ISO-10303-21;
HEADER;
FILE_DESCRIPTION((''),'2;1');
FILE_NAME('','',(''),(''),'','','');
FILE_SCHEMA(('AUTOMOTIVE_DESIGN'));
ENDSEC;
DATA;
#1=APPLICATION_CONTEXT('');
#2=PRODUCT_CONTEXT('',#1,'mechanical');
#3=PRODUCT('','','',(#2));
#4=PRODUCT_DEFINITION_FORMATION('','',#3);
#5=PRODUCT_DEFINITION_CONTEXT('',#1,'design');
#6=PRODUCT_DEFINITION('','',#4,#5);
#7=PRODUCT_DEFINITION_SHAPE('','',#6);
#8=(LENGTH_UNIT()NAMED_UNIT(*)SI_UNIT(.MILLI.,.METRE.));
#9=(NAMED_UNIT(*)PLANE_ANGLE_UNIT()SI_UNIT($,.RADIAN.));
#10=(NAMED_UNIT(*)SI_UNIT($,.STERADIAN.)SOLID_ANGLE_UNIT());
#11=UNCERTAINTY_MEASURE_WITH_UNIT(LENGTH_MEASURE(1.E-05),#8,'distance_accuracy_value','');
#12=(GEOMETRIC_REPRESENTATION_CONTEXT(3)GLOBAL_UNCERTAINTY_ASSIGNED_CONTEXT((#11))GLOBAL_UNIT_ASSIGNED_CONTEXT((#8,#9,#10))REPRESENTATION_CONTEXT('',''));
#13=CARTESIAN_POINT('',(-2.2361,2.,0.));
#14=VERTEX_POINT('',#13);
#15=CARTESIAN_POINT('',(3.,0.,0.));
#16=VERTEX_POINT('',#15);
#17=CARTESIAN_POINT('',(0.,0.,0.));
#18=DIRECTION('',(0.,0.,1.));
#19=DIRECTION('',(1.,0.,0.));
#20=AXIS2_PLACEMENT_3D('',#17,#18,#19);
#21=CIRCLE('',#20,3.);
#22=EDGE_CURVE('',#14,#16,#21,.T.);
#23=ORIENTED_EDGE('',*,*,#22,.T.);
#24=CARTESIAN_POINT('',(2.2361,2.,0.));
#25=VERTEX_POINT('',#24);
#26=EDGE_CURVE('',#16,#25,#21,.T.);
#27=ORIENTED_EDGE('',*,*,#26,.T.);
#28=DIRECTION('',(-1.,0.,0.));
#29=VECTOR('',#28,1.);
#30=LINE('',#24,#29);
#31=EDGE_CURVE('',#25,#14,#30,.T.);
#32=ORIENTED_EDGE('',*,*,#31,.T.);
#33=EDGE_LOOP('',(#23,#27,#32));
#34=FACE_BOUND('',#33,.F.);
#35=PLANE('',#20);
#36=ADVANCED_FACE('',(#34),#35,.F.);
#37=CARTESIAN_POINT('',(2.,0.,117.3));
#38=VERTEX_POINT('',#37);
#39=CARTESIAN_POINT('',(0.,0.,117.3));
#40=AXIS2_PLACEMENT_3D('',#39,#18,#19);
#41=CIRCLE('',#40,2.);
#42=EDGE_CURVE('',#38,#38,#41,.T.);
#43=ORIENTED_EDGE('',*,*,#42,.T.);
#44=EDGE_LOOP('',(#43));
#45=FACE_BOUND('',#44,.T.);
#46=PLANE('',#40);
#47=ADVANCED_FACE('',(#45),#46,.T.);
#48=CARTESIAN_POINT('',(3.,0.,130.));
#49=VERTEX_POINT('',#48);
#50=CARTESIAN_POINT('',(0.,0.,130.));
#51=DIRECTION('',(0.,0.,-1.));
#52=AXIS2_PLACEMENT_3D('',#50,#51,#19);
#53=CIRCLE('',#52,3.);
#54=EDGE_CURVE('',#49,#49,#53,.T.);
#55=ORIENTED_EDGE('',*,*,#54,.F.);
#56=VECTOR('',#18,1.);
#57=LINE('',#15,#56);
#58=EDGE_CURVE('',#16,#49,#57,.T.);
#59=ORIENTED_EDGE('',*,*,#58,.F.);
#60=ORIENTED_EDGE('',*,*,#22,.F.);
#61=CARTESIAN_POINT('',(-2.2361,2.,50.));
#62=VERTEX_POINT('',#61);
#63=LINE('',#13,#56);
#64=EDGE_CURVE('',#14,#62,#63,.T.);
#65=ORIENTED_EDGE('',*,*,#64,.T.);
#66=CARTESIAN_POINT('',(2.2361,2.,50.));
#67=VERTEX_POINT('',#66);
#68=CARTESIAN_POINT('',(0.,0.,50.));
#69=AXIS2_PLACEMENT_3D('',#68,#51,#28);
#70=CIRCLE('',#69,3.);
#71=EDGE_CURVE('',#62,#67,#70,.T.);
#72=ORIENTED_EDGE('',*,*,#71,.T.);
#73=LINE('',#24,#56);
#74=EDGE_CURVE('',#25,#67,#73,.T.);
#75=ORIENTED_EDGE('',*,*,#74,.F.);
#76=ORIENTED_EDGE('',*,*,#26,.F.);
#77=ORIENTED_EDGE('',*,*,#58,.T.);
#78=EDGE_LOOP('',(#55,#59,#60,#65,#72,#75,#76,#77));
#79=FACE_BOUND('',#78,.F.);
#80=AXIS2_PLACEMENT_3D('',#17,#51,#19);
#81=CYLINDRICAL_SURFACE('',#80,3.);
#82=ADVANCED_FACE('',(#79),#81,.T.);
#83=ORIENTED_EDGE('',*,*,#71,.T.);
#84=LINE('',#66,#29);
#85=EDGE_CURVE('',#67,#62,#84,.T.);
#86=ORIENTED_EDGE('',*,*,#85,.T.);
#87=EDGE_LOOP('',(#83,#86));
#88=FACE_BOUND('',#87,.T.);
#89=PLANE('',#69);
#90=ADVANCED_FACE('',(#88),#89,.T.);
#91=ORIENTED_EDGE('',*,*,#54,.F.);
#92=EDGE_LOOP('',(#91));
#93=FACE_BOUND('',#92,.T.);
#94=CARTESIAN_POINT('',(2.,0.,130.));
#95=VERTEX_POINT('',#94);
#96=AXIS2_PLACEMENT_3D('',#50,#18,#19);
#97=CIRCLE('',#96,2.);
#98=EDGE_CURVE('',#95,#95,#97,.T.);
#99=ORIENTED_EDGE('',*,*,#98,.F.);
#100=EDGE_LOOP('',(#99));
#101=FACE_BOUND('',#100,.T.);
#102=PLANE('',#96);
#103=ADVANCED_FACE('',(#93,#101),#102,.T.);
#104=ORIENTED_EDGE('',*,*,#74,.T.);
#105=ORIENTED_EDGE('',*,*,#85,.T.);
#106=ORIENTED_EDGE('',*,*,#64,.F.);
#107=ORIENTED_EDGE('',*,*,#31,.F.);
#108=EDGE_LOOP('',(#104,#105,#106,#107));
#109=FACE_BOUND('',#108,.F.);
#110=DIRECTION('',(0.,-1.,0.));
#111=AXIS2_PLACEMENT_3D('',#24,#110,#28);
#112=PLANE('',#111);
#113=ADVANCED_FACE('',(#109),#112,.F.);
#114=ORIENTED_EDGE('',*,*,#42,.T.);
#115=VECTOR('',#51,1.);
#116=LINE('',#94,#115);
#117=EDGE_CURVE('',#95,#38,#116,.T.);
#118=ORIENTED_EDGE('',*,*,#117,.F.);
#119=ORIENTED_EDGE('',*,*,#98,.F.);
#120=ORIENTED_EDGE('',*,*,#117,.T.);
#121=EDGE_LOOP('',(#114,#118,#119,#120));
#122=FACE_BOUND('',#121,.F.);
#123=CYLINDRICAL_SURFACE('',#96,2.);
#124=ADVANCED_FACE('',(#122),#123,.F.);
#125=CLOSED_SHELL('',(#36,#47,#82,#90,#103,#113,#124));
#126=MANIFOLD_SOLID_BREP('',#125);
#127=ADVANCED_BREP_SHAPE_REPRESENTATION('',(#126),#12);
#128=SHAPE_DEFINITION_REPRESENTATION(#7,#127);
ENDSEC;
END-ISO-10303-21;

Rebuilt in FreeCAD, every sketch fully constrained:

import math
import FreeCAD as App
import Part
import Sketcher
from FreeCAD import Vector

doc = App.newDocument("Part")
body = doc.addObject("PartDesign::Body", "Body")

sketch1 = doc.addObject("Sketcher::SketchObject", "Sketch")
body.addObject(sketch1)
sketch1.AttachmentSupport = (doc.XY_Plane, [""])
sketch1.MapMode = "FlatFace"
sketch1.addGeometry(Part.Circle(Vector(0, 0, 0), Vector(0, 0, 1), 3), False)
sketch1.addConstraint([
    Sketcher.Constraint("Coincident", 0, 3, -1, 1),
    Sketcher.Constraint("Diameter", 0, 6.0),
])
pad1 = doc.addObject("PartDesign::Pad", "Pad")
body.addObject(pad1)
pad1.Profile = sketch1
pad1.Length = 130

sketch2 = doc.addObject("Sketcher::SketchObject", "Sketch001")
body.addObject(sketch2)
sketch2.AttachmentSupport = (doc.XY_Plane, [""])
sketch2.MapMode = "FlatFace"
sketch2.AttachmentOffset = App.Placement(Vector(0, 0, 130), App.Rotation())
sketch2.addGeometry(Part.Circle(Vector(0, 0, 0), Vector(0, 0, 1), 2), False)
sketch2.addConstraint([
    Sketcher.Constraint("Coincident", 0, 3, -1, 1),
    Sketcher.Constraint("Diameter", 0, 4.0),
])
pocket1 = doc.addObject("PartDesign::Pocket", "Pocket")
body.addObject(pocket1)
pocket1.Profile = sketch2
pocket1.Length = 12.7

sketch3 = doc.addObject("Sketcher::SketchObject", "Sketch002")
body.addObject(sketch3)
sketch3.AttachmentSupport = (doc.XY_Plane, [""])
sketch3.MapMode = "FlatFace"
sketch3.addGeometry([
    Part.LineSegment(Vector(2.2, 2, 0), Vector(-2.2, 2, 0)),
    Part.ArcOfCircle(Part.Circle(Vector(0, 0, 0), Vector(0, 0, 1), 3), math.radians(42), math.radians(138)),
], False)
sketch3.addConstraint([
    Sketcher.Constraint("Coincident", 0, 1, 1, 1),
    Sketcher.Constraint("Coincident", 1, 2, 0, 2),
    Sketcher.Constraint("Horizontal", 0),
    Sketcher.Constraint("Coincident", 1, 3, -1, 1),
    Sketcher.Constraint("DistanceY", -1, 1, 0, 1, 2.0),
    Sketcher.Constraint("Radius", 1, 3.0),
])
pocket2 = doc.addObject("PartDesign::Pocket", "Pocket001")
body.addObject(pocket2)
pocket2.Profile = sketch3
pocket2.Length = 50
pocket2.Reversed = True

doc.recompute()
